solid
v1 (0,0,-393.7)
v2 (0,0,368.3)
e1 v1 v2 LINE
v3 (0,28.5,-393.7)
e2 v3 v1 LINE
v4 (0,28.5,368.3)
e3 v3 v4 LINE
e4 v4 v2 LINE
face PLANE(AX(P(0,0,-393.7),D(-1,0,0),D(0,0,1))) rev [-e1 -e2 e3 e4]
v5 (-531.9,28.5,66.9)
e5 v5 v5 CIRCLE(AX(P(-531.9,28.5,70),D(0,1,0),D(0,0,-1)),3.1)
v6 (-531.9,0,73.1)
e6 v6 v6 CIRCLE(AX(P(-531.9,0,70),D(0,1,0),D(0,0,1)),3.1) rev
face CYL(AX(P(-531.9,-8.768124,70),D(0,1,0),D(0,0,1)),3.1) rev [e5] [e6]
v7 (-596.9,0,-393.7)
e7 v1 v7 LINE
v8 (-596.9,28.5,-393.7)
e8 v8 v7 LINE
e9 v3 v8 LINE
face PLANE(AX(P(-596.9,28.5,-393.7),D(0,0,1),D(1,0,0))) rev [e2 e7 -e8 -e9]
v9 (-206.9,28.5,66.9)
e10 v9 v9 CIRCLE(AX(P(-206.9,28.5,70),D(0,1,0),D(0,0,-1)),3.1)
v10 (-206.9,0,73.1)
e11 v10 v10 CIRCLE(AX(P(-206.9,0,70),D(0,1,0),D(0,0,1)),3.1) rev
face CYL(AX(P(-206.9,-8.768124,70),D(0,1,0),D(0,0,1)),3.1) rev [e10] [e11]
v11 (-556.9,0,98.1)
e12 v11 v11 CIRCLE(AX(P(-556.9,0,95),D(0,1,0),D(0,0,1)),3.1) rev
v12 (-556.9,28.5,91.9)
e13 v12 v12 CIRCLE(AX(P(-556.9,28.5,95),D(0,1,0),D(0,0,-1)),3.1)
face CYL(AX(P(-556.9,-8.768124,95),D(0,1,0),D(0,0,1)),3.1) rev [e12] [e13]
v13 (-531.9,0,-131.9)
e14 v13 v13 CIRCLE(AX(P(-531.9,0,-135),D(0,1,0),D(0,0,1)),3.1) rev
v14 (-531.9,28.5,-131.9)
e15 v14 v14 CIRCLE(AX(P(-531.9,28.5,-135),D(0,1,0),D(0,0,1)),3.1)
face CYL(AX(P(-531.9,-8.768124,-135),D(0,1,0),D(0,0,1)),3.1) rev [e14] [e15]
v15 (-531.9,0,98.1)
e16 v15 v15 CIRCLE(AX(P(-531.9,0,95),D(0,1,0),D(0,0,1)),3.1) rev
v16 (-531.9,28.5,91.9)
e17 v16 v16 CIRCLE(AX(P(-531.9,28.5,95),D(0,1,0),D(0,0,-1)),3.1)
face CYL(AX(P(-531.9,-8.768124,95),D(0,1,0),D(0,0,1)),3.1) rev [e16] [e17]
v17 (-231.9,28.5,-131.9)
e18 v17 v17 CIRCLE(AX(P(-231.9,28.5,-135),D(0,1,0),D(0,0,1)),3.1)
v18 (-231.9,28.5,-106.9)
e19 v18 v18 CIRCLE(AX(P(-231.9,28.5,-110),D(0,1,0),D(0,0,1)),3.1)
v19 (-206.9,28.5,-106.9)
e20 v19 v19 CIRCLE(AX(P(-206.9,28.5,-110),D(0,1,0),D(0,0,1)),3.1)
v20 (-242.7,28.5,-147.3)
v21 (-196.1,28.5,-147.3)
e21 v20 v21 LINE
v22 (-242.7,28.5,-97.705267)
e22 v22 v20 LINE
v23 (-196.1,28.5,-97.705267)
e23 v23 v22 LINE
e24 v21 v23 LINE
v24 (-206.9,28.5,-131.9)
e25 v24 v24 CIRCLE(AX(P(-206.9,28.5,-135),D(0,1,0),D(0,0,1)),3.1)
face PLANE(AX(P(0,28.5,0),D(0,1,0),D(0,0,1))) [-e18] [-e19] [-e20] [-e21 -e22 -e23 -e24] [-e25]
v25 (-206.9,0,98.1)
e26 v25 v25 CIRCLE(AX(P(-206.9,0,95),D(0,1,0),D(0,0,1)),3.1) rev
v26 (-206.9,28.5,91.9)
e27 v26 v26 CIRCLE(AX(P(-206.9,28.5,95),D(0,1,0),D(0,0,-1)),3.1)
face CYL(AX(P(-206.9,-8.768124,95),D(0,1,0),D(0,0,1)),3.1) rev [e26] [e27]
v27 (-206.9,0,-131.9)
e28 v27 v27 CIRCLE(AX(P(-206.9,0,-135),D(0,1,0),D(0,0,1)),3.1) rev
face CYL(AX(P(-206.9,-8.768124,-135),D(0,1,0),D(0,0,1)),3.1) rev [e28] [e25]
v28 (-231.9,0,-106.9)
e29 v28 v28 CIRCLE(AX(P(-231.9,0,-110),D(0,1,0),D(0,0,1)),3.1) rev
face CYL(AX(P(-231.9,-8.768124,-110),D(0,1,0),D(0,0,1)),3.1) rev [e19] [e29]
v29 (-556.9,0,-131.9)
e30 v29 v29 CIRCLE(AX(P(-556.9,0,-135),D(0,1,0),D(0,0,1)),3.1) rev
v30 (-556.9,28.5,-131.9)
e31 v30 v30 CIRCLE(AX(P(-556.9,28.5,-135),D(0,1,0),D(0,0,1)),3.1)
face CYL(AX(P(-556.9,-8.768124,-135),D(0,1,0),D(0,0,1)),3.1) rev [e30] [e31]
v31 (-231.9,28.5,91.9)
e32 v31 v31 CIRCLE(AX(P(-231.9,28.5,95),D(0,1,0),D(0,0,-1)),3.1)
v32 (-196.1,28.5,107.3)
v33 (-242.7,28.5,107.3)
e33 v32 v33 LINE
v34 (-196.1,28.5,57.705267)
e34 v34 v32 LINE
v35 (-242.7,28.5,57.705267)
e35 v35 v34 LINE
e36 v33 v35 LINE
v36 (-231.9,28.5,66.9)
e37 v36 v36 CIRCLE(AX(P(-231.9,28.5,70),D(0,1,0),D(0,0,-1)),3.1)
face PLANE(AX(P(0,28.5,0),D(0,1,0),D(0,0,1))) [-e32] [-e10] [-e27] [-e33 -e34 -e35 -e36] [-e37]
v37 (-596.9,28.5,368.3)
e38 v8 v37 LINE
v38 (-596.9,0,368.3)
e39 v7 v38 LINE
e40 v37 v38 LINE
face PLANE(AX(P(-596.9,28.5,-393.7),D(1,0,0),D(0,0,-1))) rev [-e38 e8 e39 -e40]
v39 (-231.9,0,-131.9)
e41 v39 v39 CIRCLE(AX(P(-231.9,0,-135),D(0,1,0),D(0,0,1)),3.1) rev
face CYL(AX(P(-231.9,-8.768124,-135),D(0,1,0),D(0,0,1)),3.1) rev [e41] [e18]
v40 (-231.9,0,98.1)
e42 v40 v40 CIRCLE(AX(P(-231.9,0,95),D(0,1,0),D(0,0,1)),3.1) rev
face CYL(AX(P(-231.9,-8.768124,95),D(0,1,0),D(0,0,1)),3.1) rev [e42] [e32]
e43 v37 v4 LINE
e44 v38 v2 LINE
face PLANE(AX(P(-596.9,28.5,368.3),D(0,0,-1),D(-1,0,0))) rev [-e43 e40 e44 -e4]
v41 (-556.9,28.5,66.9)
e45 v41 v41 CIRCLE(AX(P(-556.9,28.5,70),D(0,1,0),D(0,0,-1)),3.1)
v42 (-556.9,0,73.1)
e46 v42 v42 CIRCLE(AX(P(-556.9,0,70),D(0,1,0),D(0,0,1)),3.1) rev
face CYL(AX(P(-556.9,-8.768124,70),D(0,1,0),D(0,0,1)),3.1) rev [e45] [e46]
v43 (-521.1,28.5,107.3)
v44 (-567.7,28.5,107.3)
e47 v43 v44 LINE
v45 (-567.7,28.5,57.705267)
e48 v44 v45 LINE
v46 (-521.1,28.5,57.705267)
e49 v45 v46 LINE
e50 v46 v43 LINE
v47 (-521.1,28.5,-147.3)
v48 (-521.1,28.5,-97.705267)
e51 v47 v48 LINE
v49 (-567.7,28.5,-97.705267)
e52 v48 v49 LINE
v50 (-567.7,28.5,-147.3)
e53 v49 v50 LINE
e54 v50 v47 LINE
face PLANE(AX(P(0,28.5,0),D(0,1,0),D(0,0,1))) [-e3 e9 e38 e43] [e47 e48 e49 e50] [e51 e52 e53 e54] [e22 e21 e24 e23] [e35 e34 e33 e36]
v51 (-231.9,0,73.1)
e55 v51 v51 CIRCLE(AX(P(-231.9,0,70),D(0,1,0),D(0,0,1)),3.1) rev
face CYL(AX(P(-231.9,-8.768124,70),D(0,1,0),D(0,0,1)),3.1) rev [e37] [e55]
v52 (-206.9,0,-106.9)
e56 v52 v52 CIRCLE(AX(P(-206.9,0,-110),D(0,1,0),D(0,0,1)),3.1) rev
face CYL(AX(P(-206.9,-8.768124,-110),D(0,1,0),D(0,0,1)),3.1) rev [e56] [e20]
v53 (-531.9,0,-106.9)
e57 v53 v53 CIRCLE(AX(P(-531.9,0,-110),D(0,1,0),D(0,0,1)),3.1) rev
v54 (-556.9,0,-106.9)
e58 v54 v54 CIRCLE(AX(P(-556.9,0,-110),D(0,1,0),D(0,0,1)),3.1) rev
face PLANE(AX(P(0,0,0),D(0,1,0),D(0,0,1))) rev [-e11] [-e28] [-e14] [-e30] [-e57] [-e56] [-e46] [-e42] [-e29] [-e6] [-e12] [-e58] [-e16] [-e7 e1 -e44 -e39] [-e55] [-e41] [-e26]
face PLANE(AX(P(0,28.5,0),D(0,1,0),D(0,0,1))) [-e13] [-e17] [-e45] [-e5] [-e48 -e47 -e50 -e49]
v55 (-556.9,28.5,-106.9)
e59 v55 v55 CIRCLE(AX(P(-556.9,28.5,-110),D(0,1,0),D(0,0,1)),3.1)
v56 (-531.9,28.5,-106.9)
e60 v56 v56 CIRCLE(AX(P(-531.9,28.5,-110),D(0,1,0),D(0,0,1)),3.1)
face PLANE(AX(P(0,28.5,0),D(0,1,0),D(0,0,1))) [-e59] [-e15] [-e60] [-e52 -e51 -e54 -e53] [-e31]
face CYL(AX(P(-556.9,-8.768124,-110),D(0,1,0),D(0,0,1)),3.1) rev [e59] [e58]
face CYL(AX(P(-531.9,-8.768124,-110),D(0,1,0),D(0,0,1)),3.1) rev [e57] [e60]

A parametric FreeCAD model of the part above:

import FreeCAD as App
import Part
import Sketcher

V = App.Vector
Q = App.Units.Quantity


def add_polygon(sketch, points):
    """Adds a closed chain of lines whose ends are joined by coincident constraints."""
    first, n = sketch.GeometryCount, len(points)
    for a, b in zip(points, points[1:] + points[:1]):
        sketch.addGeometry(Part.LineSegment(App.Vector(*a, 0), App.Vector(*b, 0)), False)
    for i in range(n):
        sketch.addConstraint(Sketcher.Constraint("Coincident", first + i, 2, first + (i + 1) % n, 1))

doc = App.newDocument("Part")
params = doc.addObject("Spreadsheet::Sheet", "Params")
for row, (alias, value) in enumerate([
    ("sketch1_width", "4 in"),
    ("sketch1_height", "20 in"),
    ("sketch1_height2", "9 in"),
    ("sketch1_width2", "40.5 in"),
    ("pad1_length", "27.75 in"),
    ("sketch2_height", "20 in"),
    ("sketch3_width", "47 in"),
    ("sketch3_height", "30 in"),
    ("pad2_length", "28.5 mm"),
    ("pocket2_length", "28.5 mm"),
    ("sketch5_width", "23.5 in"),
    ("pad3_length", "369.3 mm"),
    ("pad3_length2", "394.7 mm"),
], start=1):
    params.set(f"A{row}", alias)
    params.set(f"B{row}", "=" + value)
    params.setAlias(f"B{row}", alias)

body = doc.addObject("PartDesign::Body", "Body")

# Sketch on XZ plane
sketch1 = body.newObject("Sketcher::SketchObject", "Sketch")
sketch1.AttachmentSupport = (doc.getObject("XZ_Plane"), [""])
sketch1.MapMode = "FlatFace"
add_polygon(sketch1, [(-584, -356), (-584, -254), (-552, -254), (-552, 254), (-584, 254), (-584, 356), (-483, 356), (-483, 254), (-514, 254), (-514, 25), (514, 25), (514, 254), (483, 254), (483, 356), (584, 356), (584, 254), (552, 254), (552, -254), (584, -254), (584, -356), (483, -356), (483, -254), (514, -254), (514, -25), (-514, -25), (-514, -254), (-483, -254), (-483, -356)])  # lines 0-27
sketch1.addConstraint(Sketcher.Constraint("Vertical", 0))
sketch1.addConstraint(Sketcher.Constraint("Horizontal", 1))
sketch1.addConstraint(Sketcher.Constraint("Vertical", 2))
sketch1.addConstraint(Sketcher.Constraint("Horizontal", 3))
sketch1.addConstraint(Sketcher.Constraint("Vertical", 4))
sketch1.addConstraint(Sketcher.Constraint("Horizontal", 5))
sketch1.addConstraint(Sketcher.Constraint("Vertical", 6))
sketch1.addConstraint(Sketcher.Constraint("Horizontal", 7))
sketch1.addConstraint(Sketcher.Constraint("Vertical", 8))
sketch1.addConstraint(Sketcher.Constraint("Horizontal", 9))
sketch1.addConstraint(Sketcher.Constraint("Vertical", 10))
sketch1.addConstraint(Sketcher.Constraint("Horizontal", 11))
sketch1.addConstraint(Sketcher.Constraint("Vertical", 12))
sketch1.addConstraint(Sketcher.Constraint("Horizontal", 13))
sketch1.addConstraint(Sketcher.Constraint("Vertical", 14))
sketch1.addConstraint(Sketcher.Constraint("Horizontal", 15))
sketch1.addConstraint(Sketcher.Constraint("Vertical", 16))
sketch1.addConstraint(Sketcher.Constraint("Horizontal", 17))
sketch1.addConstraint(Sketcher.Constraint("Vertical", 18))
sketch1.addConstraint(Sketcher.Constraint("Horizontal", 19))
sketch1.addConstraint(Sketcher.Constraint("Vertical", 20))
sketch1.addConstraint(Sketcher.Constraint("Horizontal", 21))
sketch1.addConstraint(Sketcher.Constraint("Vertical", 22))
sketch1.addConstraint(Sketcher.Constraint("Horizontal", 23))
sketch1.addConstraint(Sketcher.Constraint("Vertical", 24))
sketch1.addConstraint(Sketcher.Constraint("Horizontal", 25))
sketch1.addConstraint(Sketcher.Constraint("Vertical", 26))
sketch1.addConstraint(Sketcher.Constraint("Horizontal", 27))
sketch1.addConstraint(Sketcher.Constraint("Symmetric", 0, 2, 14, 2, -1, 1))
sketch1.addConstraint(Sketcher.Constraint("Symmetric", 2, 2, 16, 2, -1, 1))
sketch1.addConstraint(Sketcher.Constraint("Symmetric", 4, 2, 18, 2, -1, 1))
sketch1.addConstraint(Sketcher.Constraint("Symmetric", 6, 2, 20, 2, -1, 1))
sketch1.addConstraint(Sketcher.Constraint("Symmetric", 8, 2, 22, 2, -1, 1))
sketch1.addConstraint(Sketcher.Constraint("Symmetric", 10, 2, 24, 2, -1, 1))
sketch1.addConstraint(Sketcher.Constraint("Symmetric", 12, 2, 26, 2, -1, 1))
sketch1.addConstraint(Sketcher.Constraint("Symmetric", 7, 2, 10, 2, -2))
sketch1.addConstraint(Sketcher.Constraint("Symmetric", 5, 2, 12, 2, -2))
sketch1.addConstraint(Sketcher.Constraint("Symmetric", 3, 2, 14, 2, -2))
sketch1.addConstraint(Sketcher.Constraint("Horizontal", 3, 2, 6, 2))
sketch1.addConstraint(Sketcher.Constraint("Equal", 3, 7))
sketch1.addConstraint(Sketcher.Constraint("Equal", 27, 0))
sketch1.addConstraint(Sketcher.Constraint("DistanceX", 5, 1, 5, 2, Q("4 in")))
sketch1.addConstraint(Sketcher.Constraint("DistanceY", 2, 1, 2, 2, Q("20 in")))
sketch1.addConstraint(Sketcher.Constraint("DistanceY", 8, 2, 8, 1, Q("9 in")))
sketch1.addConstraint(Sketcher.Constraint("DistanceX", 9, 1, 9, 2, Q("40.5 in")))
sketch1.addConstraint(Sketcher.Constraint("DistanceX", 0, 2, -1, 1, Q("23 in")))
sketch1.setExpression("Constraints[69]", "Params.sketch1_width")
sketch1.setExpression("Constraints[70]", "Params.sketch1_height")
sketch1.setExpression("Constraints[71]", "Params.sketch1_height2")
sketch1.setExpression("Constraints[72]", "Params.sketch1_width2")
pad1 = body.newObject("PartDesign::Pad", "Pad")
pad1.Profile = sketch1
pad1.setExpression("Length", "Params.pad1_length")

# Sketch on YZ plane
sketch2 = body.newObject("Sketcher::SketchObject", "Sketch001")
sketch2.AttachmentSupport = (doc.getObject("YZ_Plane"), [""])
sketch2.MapMode = "FlatFace"
add_polygon(sketch2, [(0, 254), (-100, 254), (-100, -254), (0, -254)])  # lines 0-3
add_polygon(sketch2, [(-151, 254), (-554, 254), (-554, -254), (-151, -254)])  # lines 4-7
add_polygon(sketch2, [(-605, 254), (-705, 254), (-705, -254), (-605, -254)])  # lines 8-11
sketch2.addConstraint(Sketcher.Constraint("Horizontal", 0))
sketch2.addConstraint(Sketcher.Constraint("Vertical", 1))
sketch2.addConstraint(Sketcher.Constraint("Horizontal", 2))
sketch2.addConstraint(Sketcher.Constraint("Vertical", 3))
sketch2.addConstraint(Sketcher.Constraint("Horizontal", 4))
sketch2.addConstraint(Sketcher.Constraint("Vertical", 5))
sketch2.addConstraint(Sketcher.Constraint("Horizontal", 6))
sketch2.addConstraint(Sketcher.Constraint("Vertical", 7))
sketch2.addConstraint(Sketcher.Constraint("Horizontal", 8))
sketch2.addConstraint(Sketcher.Constraint("Vertical", 9))
sketch2.addConstraint(Sketcher.Constraint("Horizontal", 10))
sketch2.addConstraint(Sketcher.Constraint("Vertical", 11))
sketch2.addConstraint(Sketcher.Constraint("Symmetric", 2, 2, 3, 2, -1, 1))
sketch2.addConstraint(Sketcher.Constraint("Horizontal", 3, 2, 4, 2))
sketch2.addConstraint(Sketcher.Constraint("Horizontal", 2, 2, 5, 2))
sketch2.addConstraint(Sketcher.Constraint("Horizontal", 7, 2, 8, 2))
sketch2.addConstraint(Sketcher.Constraint("Horizontal", 6, 2, 9, 2))
sketch2.addConstraint(Sketcher.Constraint("Equal", 2, 8))
sketch2.addConstraint(Sketcher.Constraint("DistanceY", 1, 2, 1, 1, Q("20 in")))
sketch2.addConstraint(Sketcher.Constraint("DistanceX", 6, 2, 1, 2, Q("2 in")))
sketch2.addConstraint(Sketcher.Constraint("DistanceX", 10, 2, 5, 2, Q("2 in")))
sketch2.addConstraint(Sketcher.Constraint("DistanceX", 8, 2, -1, 1, Q("27.75 in")))
sketch2.addConstraint(Sketcher.Constraint("DistanceX", 0, 2, 0, 1, 100.0))
sketch2.setExpression("Constraints[30]", "Params.sketch2_height")
pocket1 = body.newObject("PartDesign::Pocket", "Pocket")
pocket1.Profile = sketch2
pocket1.Type = "ThroughAll"
pocket1.Midplane = True
body2 = doc.addObject("PartDesign::Body", "Body001")

# Sketch on XZ plane
sketch3 = body2.newObject("Sketcher::SketchObject", "Sketch002")
sketch3.AttachmentSupport = (doc.getObject("XZ_Plane001"), [""])
sketch3.MapMode = "FlatFace"
add_polygon(sketch3, [(-597, -394), (-597, 368), (597, 368), (597, -394)])  # lines 0-3
sketch3.addConstraint(Sketcher.Constraint("Vertical", 0))
sketch3.addConstraint(Sketcher.Constraint("Horizontal", 1))
sketch3.addConstraint(Sketcher.Constraint("Vertical", 2))
sketch3.addConstraint(Sketcher.Constraint("Horizontal", 3))
sketch3.addConstraint(Sketcher.Constraint("DistanceX", 1, 1, 1, 2, Q("47 in")))
sketch3.addConstraint(Sketcher.Constraint("DistanceY", 0, 1, 0, 2, Q("30 in")))
sketch3.addConstraint(Sketcher.Constraint("DistanceX", 0, 2, -1, 1, Q("23.5 in")))
sketch3.addConstraint(Sketcher.Constraint("DistanceY", -1, 1, 0, 2, Q("14.5 in")))
sketch3.setExpression("Constraints[8]", "Params.sketch3_width")
sketch3.setExpression("Constraints[9]", "Params.sketch3_height")
pad2 = body2.newObject("PartDesign::Pad", "Pad001")
pad2.Profile = sketch3
pad2.setExpression("Length", "Params.pad2_length")
pad2.Reversed = True

# Sketch on XZ plane
sketch4 = body2.newObject("Sketcher::SketchObject", "Sketch003")
sketch4.AttachmentSupport = (doc.getObject("XZ_Plane001"), [""])
sketch4.MapMode = "FlatFace"
sketch4.AttachmentOffset = App.Placement(V(0, 0, -28.5), App.Rotation())
sketch4.addGeometry(Part.Circle(V(-556.9, -110, 0), V(0, 0, 1), 3.1), False)
sketch4.addGeometry(Part.Circle(V(-531.9, -110, 0), V(0, 0, 1), 3.1), False)
sketch4.addGeometry(Part.Circle(V(-531.9, -135, 0), V(0, 0, 1), 3.1), False)
sketch4.addGeometry(Part.Circle(V(-556.9, -135, 0), V(0, 0, 1), 3.1), False)
sketch4.addGeometry(Part.Circle(V(-231.9, -135, 0), V(0, 0, 1), 3.1), False)
sketch4.addGeometry(Part.Circle(V(-206.9, -135, 0), V(0, 0, 1), 3.1), False)
sketch4.addGeometry(Part.Circle(V(-231.9, -110, 0), V(0, 0, 1), 3.1), False)
sketch4.addGeometry(Part.Circle(V(-206.9, -110, 0), V(0, 0, 1), 3.1), False)
sketch4.addGeometry(Part.Circle(V(-206.9, 70, 0), V(0, 0, 1), 3.1), False)
sketch4.addGeometry(Part.Circle(V(-231.9, 70, 0), V(0, 0, 1), 3.1), False)
sketch4.addGeometry(Part.Circle(V(-231.9, 95, 0), V(0, 0, 1), 3.1), False)
sketch4.addGeometry(Part.Circle(V(-206.9, 95, 0), V(0, 0, 1), 3.1), False)
sketch4.addGeometry(Part.Circle(V(-531.9, 70, 0), V(0, 0, 1), 3.1), False)
sketch4.addGeometry(Part.Circle(V(-531.9, 95, 0), V(0, 0, 1), 3.1), False)
sketch4.addGeometry(Part.Circle(V(-556.9, 70, 0), V(0, 0, 1), 3.1), False)
sketch4.addGeometry(Part.Circle(V(-556.9, 95, 0), V(0, 0, 1), 3.1), False)
sketch4.addConstraint(Sketcher.Constraint("Equal", 0, 1))
sketch4.addConstraint(Sketcher.Constraint("Equal", 1, 2))
sketch4.addConstraint(Sketcher.Constraint("Equal", 2, 3))
sketch4.addConstraint(Sketcher.Constraint("Equal", 3, 4))
sketch4.addConstraint(Sketcher.Constraint("Equal", 4, 5))
sketch4.addConstraint(Sketcher.Constraint("Equal", 5, 6))
sketch4.addConstraint(Sketcher.Constraint("Equal", 6, 7))
sketch4.addConstraint(Sketcher.Constraint("Equal", 7, 8))
sketch4.addConstraint(Sketcher.Constraint("Equal", 8, 9))
sketch4.addConstraint(Sketcher.Constraint("Equal", 9, 10))
sketch4.addConstraint(Sketcher.Constraint("Equal", 10, 11))
sketch4.addConstraint(Sketcher.Constraint("Equal", 11, 12))
sketch4.addConstraint(Sketcher.Constraint("Equal", 12, 13))
sketch4.addConstraint(Sketcher.Constraint("Equal", 13, 14))
sketch4.addConstraint(Sketcher.Constraint("Equal", 14, 15))
sketch4.addConstraint(Sketcher.Constraint("Horizontal", 0, 3, 1, 3))
sketch4.addConstraint(Sketcher.Constraint("Horizontal", 2, 3, 3, 3))
sketch4.addConstraint(Sketcher.Constraint("Horizontal", 3, 3, 4, 3))
sketch4.addConstraint(Sketcher.Constraint("Horizontal", 4, 3, 5, 3))
sketch4.addConstraint(Sketcher.Constraint("Horizontal", 1, 3, 6, 3))
sketch4.addConstraint(Sketcher.Constraint("Horizontal", 6, 3, 7, 3))
sketch4.addConstraint(Sketcher.Constraint("Horizontal", 8, 3, 9, 3))
sketch4.addConstraint(Sketcher.Constraint("Horizontal", 10, 3, 11, 3))
sketch4.addConstraint(Sketcher.Constraint("Horizontal", 9, 3, 12, 3))
sketch4.addConstraint(Sketcher.Constraint("Horizontal", 11, 3, 13, 3))
sketch4.addConstraint(Sketcher.Constraint("Horizontal", 12, 3, 14, 3))
sketch4.addConstraint(Sketcher.Constraint("Horizontal", 13, 3, 15, 3))
sketch4.addConstraint(Sketcher.Constraint("Vertical", 1, 3, 2, 3))
sketch4.addConstraint(Sketcher.Constraint("Vertical", 0, 3, 3, 3))
sketch4.addConstraint(Sketcher.Constraint("Vertical", 4, 3, 6, 3))
sketch4.addConstraint(Sketcher.Constraint("Vertical", 5, 3, 7, 3))
sketch4.addConstraint(Sketcher.Constraint("Vertical", 7, 3, 8, 3))
sketch4.addConstraint(Sketcher.Constraint("Vertical", 6, 3, 9, 3))
sketch4.addConstraint(Sketcher.Constraint("Vertical", 9, 3, 10, 3))
sketch4.addConstraint(Sketcher.Constraint("Vertical", 8, 3, 11, 3))
sketch4.addConstraint(Sketcher.Constraint("Vertical", 2, 3, 12, 3))
sketch4.addConstraint(Sketcher.Constraint("Vertical", 12, 3, 13, 3))
sketch4.addConstraint(Sketcher.Constraint("Vertical", 3, 3, 14, 3))
sketch4.addConstraint(Sketcher.Constraint("Vertical", 14, 3, 15, 3))
sketch4.addConstraint(Sketcher.Constraint("Diameter", 0, 6.2))
sketch4.addConstraint(Sketcher.Constraint("DistanceX", 0, 3, -1, 1, 556.9))
sketch4.addConstraint(Sketcher.Constraint("DistanceY", 0, 3, -1, 1, 110.0))
sketch4.addConstraint(Sketcher.Constraint("DistanceX", 1, 3, -1, 1, 531.9))
sketch4.addConstraint(Sketcher.Constraint("DistanceY", 2, 3, -1, 1, 135.0))
sketch4.addConstraint(Sketcher.Constraint("DistanceX", 4, 3, -1, 1, 231.9))
sketch4.addConstraint(Sketcher.Constraint("DistanceX", 5, 3, -1, 1, 206.9))
sketch4.addConstraint(Sketcher.Constraint("DistanceY", -1, 1, 8, 3, 70.0))
sketch4.addConstraint(Sketcher.Constraint("DistanceY", -1, 1, 10, 3, 95.0))
pocket2 = body2.newObject("PartDesign::Pocket", "Pocket001")
pocket2.Profile = sketch4
pocket2.setExpression("Length", "Params.pocket2_length")
pocket2.Reversed = True
doc.recompute()

mirrored = body2.newObject("PartDesign::Mirrored", "Mirrored")
mirrored.Originals = [pocket2]
mirrored.MirrorPlane = (doc.getObject("YZ_Plane001"), [""])
body2.Tip = mirrored
body3 = doc.addObject("PartDesign::Body", "Body002")

# Sketch on XY plane
sketch5 = body3.newObject("Sketcher::SketchObject", "Sketch004")
sketch5.AttachmentSupport = (doc.getObject("XY_Plane002"), [""])
sketch5.MapMode = "FlatFace"
sketch5.addGeometry(Part.Circle(V(0, 0, 0), V(0, 0, 1), 1000), False)  # 0
add_polygon(sketch5, [(0, 0), (-597, 0), (-597, 28), (0, 28)])  # lines 1-4
sketch5.addConstraint(Sketcher.Constraint("Horizontal", 1))
sketch5.addConstraint(Sketcher.Constraint("Vertical", 2))
sketch5.addConstraint(Sketcher.Constraint("Horizontal", 3))
sketch5.addConstraint(Sketcher.Constraint("Vertical", 4))
sketch5.addConstraint(Sketcher.Constraint("Coincident", 0, 3, -1, 1))
sketch5.addConstraint(Sketcher.Constraint("Coincident", 4, 2, -1, 1))
sketch5.addConstraint(Sketcher.Constraint("DistanceX", 1, 2, 1, 1, Q("23.5 in")))
sketch5.addConstraint(Sketcher.Constraint("Diameter", 0, 2000.0))
sketch5.addConstraint(Sketcher.Constraint("DistanceY", 2, 1, 2, 2, 28.5))
sketch5.setExpression("Constraints[10]", "Params.sketch5_width")
pad3 = body3.newObject("PartDesign::Pad", "Pad002")
pad3.Profile = sketch5
pad3.Type = "TwoLengths"
pad3.setExpression("Length", "Params.pad3_length")
pad3.setExpression("Length2", "Params.pad3_length2")
doc.recompute()

body4 = doc.addObject("PartDesign::Body", "Body003")
body4.BaseFeature = body3
boolean = body.newObject("PartDesign::Boolean", "Boolean")
boolean.Type = "Cut"
boolean.addObjects([body4])
doc.recompute()

boolean2 = body2.newObject("PartDesign::Boolean", "Boolean001")
boolean2.Type = "Cut"
boolean2.addObjects([body3])

doc.recompute()
